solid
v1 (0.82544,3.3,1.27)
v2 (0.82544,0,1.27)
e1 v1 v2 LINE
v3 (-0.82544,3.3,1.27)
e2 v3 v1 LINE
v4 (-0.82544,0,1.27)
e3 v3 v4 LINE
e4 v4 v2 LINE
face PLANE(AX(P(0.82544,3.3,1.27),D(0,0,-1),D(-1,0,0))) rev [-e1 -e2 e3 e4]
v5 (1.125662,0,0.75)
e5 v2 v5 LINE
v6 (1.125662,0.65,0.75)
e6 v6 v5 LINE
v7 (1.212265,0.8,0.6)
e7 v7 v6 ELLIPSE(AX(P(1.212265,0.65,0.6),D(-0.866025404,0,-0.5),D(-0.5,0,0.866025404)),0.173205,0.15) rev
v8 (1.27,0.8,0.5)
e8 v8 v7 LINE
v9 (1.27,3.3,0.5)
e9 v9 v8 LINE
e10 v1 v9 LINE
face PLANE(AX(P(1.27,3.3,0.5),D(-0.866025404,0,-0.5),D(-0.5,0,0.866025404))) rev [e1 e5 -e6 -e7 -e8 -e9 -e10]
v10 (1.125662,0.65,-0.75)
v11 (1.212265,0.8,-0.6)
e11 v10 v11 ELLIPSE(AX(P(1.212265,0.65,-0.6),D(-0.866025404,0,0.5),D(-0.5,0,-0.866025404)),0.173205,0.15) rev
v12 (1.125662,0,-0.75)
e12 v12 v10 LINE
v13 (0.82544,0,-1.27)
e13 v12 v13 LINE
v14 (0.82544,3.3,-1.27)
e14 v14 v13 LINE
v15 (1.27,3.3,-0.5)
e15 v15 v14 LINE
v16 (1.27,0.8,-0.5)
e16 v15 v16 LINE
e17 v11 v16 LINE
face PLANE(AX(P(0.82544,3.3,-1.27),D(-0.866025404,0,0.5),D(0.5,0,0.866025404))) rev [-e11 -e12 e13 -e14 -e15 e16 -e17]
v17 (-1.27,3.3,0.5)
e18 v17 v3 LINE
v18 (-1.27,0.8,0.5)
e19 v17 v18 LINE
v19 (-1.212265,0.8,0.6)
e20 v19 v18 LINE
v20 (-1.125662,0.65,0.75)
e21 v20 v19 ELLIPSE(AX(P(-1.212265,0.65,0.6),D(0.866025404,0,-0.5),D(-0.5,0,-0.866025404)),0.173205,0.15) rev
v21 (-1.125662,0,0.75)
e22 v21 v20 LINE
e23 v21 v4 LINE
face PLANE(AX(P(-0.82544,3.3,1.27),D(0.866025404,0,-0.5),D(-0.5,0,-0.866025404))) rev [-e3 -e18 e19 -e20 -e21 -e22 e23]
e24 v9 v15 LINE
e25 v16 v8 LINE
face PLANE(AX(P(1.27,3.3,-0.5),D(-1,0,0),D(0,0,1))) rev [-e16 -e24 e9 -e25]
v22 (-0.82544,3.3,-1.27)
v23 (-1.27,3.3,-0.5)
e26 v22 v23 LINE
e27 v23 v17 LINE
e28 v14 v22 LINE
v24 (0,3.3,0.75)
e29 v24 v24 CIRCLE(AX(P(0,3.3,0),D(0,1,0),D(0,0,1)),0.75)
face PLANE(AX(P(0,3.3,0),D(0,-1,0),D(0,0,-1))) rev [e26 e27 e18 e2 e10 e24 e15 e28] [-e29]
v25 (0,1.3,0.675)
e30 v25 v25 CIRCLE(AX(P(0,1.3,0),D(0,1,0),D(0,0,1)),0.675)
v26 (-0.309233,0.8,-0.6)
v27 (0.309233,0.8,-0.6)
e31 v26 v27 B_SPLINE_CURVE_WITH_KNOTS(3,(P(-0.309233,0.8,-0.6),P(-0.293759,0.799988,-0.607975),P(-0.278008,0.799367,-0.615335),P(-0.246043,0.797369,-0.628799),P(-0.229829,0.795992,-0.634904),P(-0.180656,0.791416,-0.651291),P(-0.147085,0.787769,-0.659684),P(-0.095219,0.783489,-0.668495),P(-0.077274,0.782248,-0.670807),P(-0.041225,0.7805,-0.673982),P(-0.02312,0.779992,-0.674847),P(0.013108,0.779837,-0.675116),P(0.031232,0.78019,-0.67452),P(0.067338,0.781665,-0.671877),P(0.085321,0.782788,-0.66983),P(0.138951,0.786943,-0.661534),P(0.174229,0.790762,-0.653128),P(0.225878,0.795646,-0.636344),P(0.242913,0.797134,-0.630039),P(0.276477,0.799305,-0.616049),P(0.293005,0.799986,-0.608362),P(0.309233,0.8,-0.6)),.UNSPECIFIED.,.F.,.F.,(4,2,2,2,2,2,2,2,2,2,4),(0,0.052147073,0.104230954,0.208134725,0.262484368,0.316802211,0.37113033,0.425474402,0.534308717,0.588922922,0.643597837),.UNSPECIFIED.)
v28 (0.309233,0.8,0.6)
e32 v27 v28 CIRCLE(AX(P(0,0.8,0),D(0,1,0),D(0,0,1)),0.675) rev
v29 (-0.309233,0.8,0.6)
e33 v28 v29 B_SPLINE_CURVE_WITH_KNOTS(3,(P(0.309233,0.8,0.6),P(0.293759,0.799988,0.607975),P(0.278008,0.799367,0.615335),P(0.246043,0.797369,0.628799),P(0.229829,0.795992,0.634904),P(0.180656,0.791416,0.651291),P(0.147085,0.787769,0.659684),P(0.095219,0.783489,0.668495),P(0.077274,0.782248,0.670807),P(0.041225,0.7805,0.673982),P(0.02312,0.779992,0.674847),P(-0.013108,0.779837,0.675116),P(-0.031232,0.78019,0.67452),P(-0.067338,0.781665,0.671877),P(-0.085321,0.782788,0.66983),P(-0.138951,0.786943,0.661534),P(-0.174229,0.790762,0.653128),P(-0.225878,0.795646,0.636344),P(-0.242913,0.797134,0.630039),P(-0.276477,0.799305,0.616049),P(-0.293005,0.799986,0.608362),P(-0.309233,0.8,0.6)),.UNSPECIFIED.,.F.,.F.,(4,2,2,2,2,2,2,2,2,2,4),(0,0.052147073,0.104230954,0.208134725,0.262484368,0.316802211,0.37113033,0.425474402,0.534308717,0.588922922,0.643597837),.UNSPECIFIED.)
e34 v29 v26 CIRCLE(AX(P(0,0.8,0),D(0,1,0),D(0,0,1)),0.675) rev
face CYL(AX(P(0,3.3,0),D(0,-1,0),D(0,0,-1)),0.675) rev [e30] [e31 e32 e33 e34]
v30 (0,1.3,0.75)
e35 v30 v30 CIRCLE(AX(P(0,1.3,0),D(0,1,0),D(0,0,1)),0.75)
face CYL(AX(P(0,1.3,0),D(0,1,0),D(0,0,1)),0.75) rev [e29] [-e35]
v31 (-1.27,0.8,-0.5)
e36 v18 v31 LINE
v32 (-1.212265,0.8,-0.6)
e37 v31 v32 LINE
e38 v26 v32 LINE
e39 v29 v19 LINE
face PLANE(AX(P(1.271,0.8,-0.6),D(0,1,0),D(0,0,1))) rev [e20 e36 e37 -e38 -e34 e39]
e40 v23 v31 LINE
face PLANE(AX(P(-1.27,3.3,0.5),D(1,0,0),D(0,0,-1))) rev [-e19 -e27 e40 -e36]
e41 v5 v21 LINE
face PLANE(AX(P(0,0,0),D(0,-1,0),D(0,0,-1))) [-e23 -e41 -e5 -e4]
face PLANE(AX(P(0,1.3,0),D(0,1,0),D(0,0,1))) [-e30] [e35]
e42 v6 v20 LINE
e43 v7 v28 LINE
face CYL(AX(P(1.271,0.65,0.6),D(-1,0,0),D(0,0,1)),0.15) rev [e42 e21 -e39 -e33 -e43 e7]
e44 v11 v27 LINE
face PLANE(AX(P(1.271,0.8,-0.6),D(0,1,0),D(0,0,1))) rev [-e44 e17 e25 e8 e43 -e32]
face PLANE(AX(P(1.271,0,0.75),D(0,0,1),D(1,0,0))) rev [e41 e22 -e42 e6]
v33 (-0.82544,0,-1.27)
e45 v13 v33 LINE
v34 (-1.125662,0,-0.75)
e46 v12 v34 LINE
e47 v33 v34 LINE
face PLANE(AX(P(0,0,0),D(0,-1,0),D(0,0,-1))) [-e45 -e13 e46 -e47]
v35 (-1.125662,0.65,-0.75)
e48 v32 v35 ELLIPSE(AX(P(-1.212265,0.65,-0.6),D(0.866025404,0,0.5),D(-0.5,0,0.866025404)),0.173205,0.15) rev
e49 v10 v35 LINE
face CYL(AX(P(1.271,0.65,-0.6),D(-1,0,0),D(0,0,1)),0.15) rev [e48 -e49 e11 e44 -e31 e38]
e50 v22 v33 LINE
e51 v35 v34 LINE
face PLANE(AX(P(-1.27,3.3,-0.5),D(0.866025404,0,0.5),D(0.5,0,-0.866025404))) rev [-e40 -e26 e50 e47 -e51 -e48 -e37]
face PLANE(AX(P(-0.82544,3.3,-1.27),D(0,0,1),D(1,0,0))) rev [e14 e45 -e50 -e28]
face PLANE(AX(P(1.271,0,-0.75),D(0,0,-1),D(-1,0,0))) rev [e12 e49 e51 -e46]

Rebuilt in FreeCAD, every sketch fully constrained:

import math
import FreeCAD as App
import Part
import Sketcher
from FreeCAD import Vector
Q = App.Units.Quantity


def add_polygon(sketch, points):
    """Adds a closed chain of lines whose ends are joined by coincident constraints."""
    first, n = sketch.GeometryCount, len(points)
    for a, b in zip(points, points[1:] + points[:1]):
        sketch.addGeometry(Part.LineSegment(App.Vector(*a, 0), App.Vector(*b, 0)), False)
    for i in range(n):
        sketch.addConstraint(Sketcher.Constraint("Coincident", first + i, 2, first + (i + 1) % n, 1))

doc = App.newDocument("Part")
body = doc.addObject("PartDesign::Body", "Body")

# Sketch on XZ plane
sketch1 = body.newObject("Sketcher::SketchObject", "Sketch")
sketch1.AttachmentSupport = (doc.getObject("XZ_Plane"), [""])
sketch1.MapMode = "FlatFace"
add_polygon(sketch1, [(0.8, -1.3), (-0.8, -1.3), (-1.3, -0.5), (-1.3, 0.5), (-0.8, 1.3), (0.8, 1.3), (1.3, 0.5), (1.3, -0.5)])  # lines 0-7
sketch1.addGeometry(Part.Circle(Vector(0, 0, 0), Vector(0, 0, 1), 0.7), False)  # 8
sketch1.addConstraint(Sketcher.Constraint("Horizontal", 0))
sketch1.addConstraint(Sketcher.Constraint("Vertical", 2))
sketch1.addConstraint(Sketcher.Constraint("Horizontal", 4))
sketch1.addConstraint(Sketcher.Constraint("Vertical", 6))
sketch1.addConstraint(Sketcher.Constraint("Coincident", 8, 3, -1, 1))
sketch1.addConstraint(Sketcher.Constraint("Symmetric", 0, 2, 4, 2, -1, 1))
sketch1.addConstraint(Sketcher.Constraint("Symmetric", 1, 2, 5, 2, -1, 1))
sketch1.addConstraint(Sketcher.Constraint("Parallel", 3, 7))
sketch1.addConstraint(Sketcher.Constraint("Horizontal", 2, 2, 5, 2))
sketch1.addConstraint(Sketcher.Constraint("Horizontal", 1, 2, 6, 2))
sketch1.addConstraint(Sketcher.Constraint("Vertical", 0, 2, 3, 2))
sketch1.addConstraint(Sketcher.Constraint("Diameter", 8, Q("1.35 mm")))
sketch1.addConstraint(Sketcher.Constraint("DistanceY", 2, 1, 2, 2, Q("1 mm")))
sketch1.addConstraint(Sketcher.Constraint("Angle", 1, Q("120 deg")))
sketch1.addConstraint(Sketcher.Constraint("DistanceY", 0, 2, -1, 1, Q("1.27 mm")))
sketch1.addConstraint(Sketcher.Constraint("DistanceX", 1, 2, -1, 1, Q("1.27 mm")))
pad1 = body.newObject("PartDesign::Pad", "Pad")
pad1.Profile = sketch1
pad1.Length = 3.3
pad1.Reversed = True

# Sketch on YZ plane
sketch2 = body.newObject("Sketcher::SketchObject", "Sketch001")
sketch2.AttachmentSupport = (doc.getObject("YZ_Plane"), [""])
sketch2.MapMode = "FlatFace"
sketch2.AttachmentOffset = App.Placement(Vector(0, 0, -1.27), App.Rotation())
sketch2.addGeometry(Part.LineSegment(Vector(0, -0.75, 0), Vector(0, 0.75, 0)), False)
sketch2.addGeometry(Part.LineSegment(Vector(0, 0.75, 0), Vector(0.65, 0.75, 0)), False)
sketch2.addGeometry(Part.ArcOfCircle(Part.Circle(Vector(0.65, 0.6, 0), Vector(0, 0, 1), 0.15), math.radians(0), math.radians(90)), False)
sketch2.addGeometry(Part.LineSegment(Vector(0.8, 0.6, 0), Vector(0.8, -0.6, 0)), False)
sketch2.addGeometry(Part.ArcOfCircle(Part.Circle(Vector(0.65, -0.6, 0), Vector(0, 0, 1), 0.15), math.radians(-90), math.radians(0)), False)
sketch2.addGeometry(Part.LineSegment(Vector(0.65, -0.75, 0), Vector(0, -0.75, 0)), False)
sketch2.addConstraint(Sketcher.Constraint("Coincident", 0, 2, 1, 1))
sketch2.addConstraint(Sketcher.Constraint("Tangent", 1, 2, 2, 2))
sketch2.addConstraint(Sketcher.Constraint("Tangent", 2, 1, 3, 1))
sketch2.addConstraint(Sketcher.Constraint("Tangent", 3, 2, 4, 2))
sketch2.addConstraint(Sketcher.Constraint("Tangent", 4, 1, 5, 1))
sketch2.addConstraint(Sketcher.Constraint("Coincident", 5, 2, 0, 1))
sketch2.addConstraint(Sketcher.Constraint("Vertical", 0))
sketch2.addConstraint(Sketcher.Constraint("Horizontal", 1))
sketch2.addConstraint(Sketcher.Constraint("Vertical", 3))
sketch2.addConstraint(Sketcher.Constraint("Horizontal", 5))
sketch2.addConstraint(Sketcher.Constraint("Equal", 2, 4))
sketch2.addConstraint(Sketcher.Constraint("Symmetric", 0, 2, 5, 2, -1, 1))
sketch2.addConstraint(Sketcher.Constraint("Radius", 2, Q("0.15 mm")))
sketch2.addConstraint(Sketcher.Constraint("DistanceY", 0, 1, 0, 2, Q("1.5 mm")))
sketch2.addConstraint(Sketcher.Constraint("DistanceX", 1, 1, 1, 2, Q("0.65 mm")))
pocket1 = body.newObject("PartDesign::Pocket", "Pocket")
pocket1.Profile = sketch2
pocket1.Type = "UpToFirst"
pocket1.Reversed = True

# Sketch on XZ plane
sketch3 = body.newObject("Sketcher::SketchObject", "Sketch002")
sketch3.AttachmentSupport = (doc.getObject("XZ_Plane"), [""])
sketch3.MapMode = "FlatFace"
sketch3.AttachmentOffset = App.Placement(Vector(0, 0, -3.3), App.Rotation())
sketch3.addGeometry(Part.Circle(Vector(0, 0, 0), Vector(0, 0, 1), 0.8), False)
sketch3.addConstraint(Sketcher.Constraint("Coincident", 0, 3, -1, 1))
sketch3.addConstraint(Sketcher.Constraint("Diameter", 0, Q("1.5 mm")))
pocket2 = body.newObject("PartDesign::Pocket", "Pocket001")
pocket2.Profile = sketch3
pocket2.Length = 2
pocket2.Reversed = True

doc.recompute()
